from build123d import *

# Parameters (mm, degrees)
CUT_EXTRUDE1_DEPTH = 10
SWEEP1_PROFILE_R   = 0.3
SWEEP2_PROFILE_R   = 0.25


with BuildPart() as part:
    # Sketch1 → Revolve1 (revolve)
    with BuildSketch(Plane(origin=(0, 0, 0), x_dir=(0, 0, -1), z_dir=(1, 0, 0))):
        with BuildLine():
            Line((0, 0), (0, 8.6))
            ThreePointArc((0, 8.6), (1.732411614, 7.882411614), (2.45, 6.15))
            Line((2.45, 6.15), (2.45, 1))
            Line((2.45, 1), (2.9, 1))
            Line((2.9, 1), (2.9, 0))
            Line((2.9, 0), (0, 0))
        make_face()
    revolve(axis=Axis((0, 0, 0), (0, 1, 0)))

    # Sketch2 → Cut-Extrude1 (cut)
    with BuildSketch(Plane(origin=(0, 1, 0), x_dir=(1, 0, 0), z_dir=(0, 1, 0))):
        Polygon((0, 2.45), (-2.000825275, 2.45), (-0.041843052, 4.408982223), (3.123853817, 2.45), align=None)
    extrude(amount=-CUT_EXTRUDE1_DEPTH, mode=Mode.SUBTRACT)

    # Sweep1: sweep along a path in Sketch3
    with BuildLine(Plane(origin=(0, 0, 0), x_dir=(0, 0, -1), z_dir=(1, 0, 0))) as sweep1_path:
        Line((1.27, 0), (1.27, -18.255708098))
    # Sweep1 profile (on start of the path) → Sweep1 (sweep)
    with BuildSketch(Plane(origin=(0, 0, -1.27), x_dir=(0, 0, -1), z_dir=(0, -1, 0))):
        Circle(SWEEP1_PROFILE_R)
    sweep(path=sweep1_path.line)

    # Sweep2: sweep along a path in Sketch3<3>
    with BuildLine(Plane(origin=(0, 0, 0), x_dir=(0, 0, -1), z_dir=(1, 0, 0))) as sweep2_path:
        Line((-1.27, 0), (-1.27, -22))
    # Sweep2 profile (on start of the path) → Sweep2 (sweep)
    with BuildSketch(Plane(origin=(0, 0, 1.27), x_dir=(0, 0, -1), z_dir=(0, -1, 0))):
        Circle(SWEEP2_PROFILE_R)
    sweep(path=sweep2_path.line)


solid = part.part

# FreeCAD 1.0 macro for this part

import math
import FreeCAD as App
import Part
import Sketcher

V = App.Vector
Q = App.Units.Quantity


def add_polygon(sketch, points):
    """Adds a closed chain of lines whose ends are joined by coincident constraints."""
    first, n = sketch.GeometryCount, len(points)
    for a, b in zip(points, points[1:] + points[:1]):
        sketch.addGeometry(Part.LineSegment(App.Vector(*a, 0), App.Vector(*b, 0)), False)
    for i in range(n):
        sketch.addConstraint(Sketcher.Constraint("Coincident", first + i, 2, first + (i + 1) % n, 1))

doc = App.newDocument("Part")
params = doc.addObject("Spreadsheet::Sheet", "Params")
for row, (alias, value) in enumerate([
    ("sketch1_width", "1 mm"),
    ("sketch1_radius", "2.45 mm"),
    ("sketch1_width2", "8.6 mm"),
    ("sketch1_height", "2.9 mm"),
    ("revolution_angle", "360 deg"),
    ("pocket1_length", "10 mm"),
    ("sketch3_diameter", "0.6 mm"),
    ("sketch5_diameter", "0.5 mm"),
    ("sketch6_height", "22 mm"),
], start=1):
    params.set(f"A{row}", alias)
    params.set(f"B{row}", "=" + value)
    params.setAlias(f"B{row}", alias)

body = doc.addObject("PartDesign::Body", "Body")

# Sketch on YZ plane
sketch1 = body.newObject("Sketcher::SketchObject", "Sketch")
sketch1.AttachmentSupport = (doc.getObject("YZ_Plane"), [""])
sketch1.MapMode = "FlatFace"
sketch1.addGeometry(Part.LineSegment(V(8.6, 0, 0), V(0, 0, 0)), False)
sketch1.addGeometry(Part.LineSegment(V(0, 0, 0), V(0, -2.9, 0)), False)
sketch1.addGeometry(Part.LineSegment(V(0, -2.9, 0), V(1, -2.9, 0)), False)
sketch1.addGeometry(Part.LineSegment(V(1, -2.9, 0), V(1, -2.45, 0)), False)
sketch1.addGeometry(Part.LineSegment(V(1, -2.45, 0), V(6.15, -2.45, 0)), False)
sketch1.addGeometry(Part.ArcOfCircle(Part.Circle(V(6.15, 0, 0), V(0, 0, 1), 2.45), math.radians(-90), math.radians(0)), False)
sketch1.addConstraint(Sketcher.Constraint("Coincident", 0, 2, 1, 1))
sketch1.addConstraint(Sketcher.Constraint("Coincident", 1, 2, 2, 1))
sketch1.addConstraint(Sketcher.Constraint("Coincident", 2, 2, 3, 1))
sketch1.addConstraint(Sketcher.Constraint("Coincident", 3, 2, 4, 1))
sketch1.addConstraint(Sketcher.Constraint("Tangent", 4, 2, 5, 1))
sketch1.addConstraint(Sketcher.Constraint("Coincident", 5, 2, 0, 1))
sketch1.addConstraint(Sketcher.Constraint("Horizontal", 0))
sketch1.addConstraint(Sketcher.Constraint("Vertical", 1))
sketch1.addConstraint(Sketcher.Constraint("Horizontal", 2))
sketch1.addConstraint(Sketcher.Constraint("Vertical", 3))
sketch1.addConstraint(Sketcher.Constraint("Horizontal", 4))
sketch1.addConstraint(Sketcher.Constraint("Coincident", 0, 2, -1, 1))
sketch1.addConstraint(Sketcher.Constraint("PointOnObject", 5, 3, -1))
sketch1.addConstraint(Sketcher.Constraint("DistanceX", 2, 1, 2, 2, 1.0))
sketch1.addConstraint(Sketcher.Constraint("Radius", 5, 2.45))
sketch1.addConstraint(Sketcher.Constraint("DistanceX", 0, 2, 0, 1, 8.6))
sketch1.addConstraint(Sketcher.Constraint("DistanceY", 1, 2, 1, 1, 2.9))
sketch1.setExpression("Constraints[13]", "Params.sketch1_width")
sketch1.setExpression("Constraints[14]", "Params.sketch1_radius")
sketch1.setExpression("Constraints[15]", "Params.sketch1_width2")
sketch1.setExpression("Constraints[16]", "Params.sketch1_height")
revolution = body.newObject("PartDesign::Revolution", "Revolution")
revolution.Profile = sketch1
revolution.ReferenceAxis = (sketch1, ["H_Axis"])
revolution.setExpression("Angle", "Params.revolution_angle")

# Sketch on XZ plane
sketch2 = body.newObject("Sketcher::SketchObject", "Sketch001")
sketch2.AttachmentSupport = (doc.getObject("XZ_Plane"), [""])
sketch2.MapMode = "FlatFace"
sketch2.AttachmentOffset = App.Placement(V(0, 0, -1), App.Rotation())
add_polygon(sketch2, [(-2.000825, -2.45), (3.123854, -2.45), (-0.041843, -4.408982)])  # lines 0-2
sketch2.addConstraint(Sketcher.Constraint("Horizontal", 0))
sketch2.addConstraint(Sketcher.Constraint("Angle", 2, Q("135 deg")))
sketch2.addConstraint(Sketcher.Constraint("DistanceY", 0, 2, -1, 1, 2.45))
sketch2.addConstraint(Sketcher.Constraint("Distance", 1, 3.722801))
sketch2.addConstraint(Sketcher.Constraint("DistanceX", 0, 1, 0, 2, 5.124679))
sketch2.addConstraint(Sketcher.Constraint("DistanceX", -1, 1, 0, 2, 3.123854))
pocket1 = body.newObject("PartDesign::Pocket", "Pocket")
pocket1.Profile = sketch2
pocket1.setExpression("Length", "Params.pocket1_length")
pocket1.Reversed = True

# Sketch on XZ plane
sketch3 = body.newObject("Sketcher::SketchObject", "Sketch002")
sketch3.AttachmentSupport = (doc.getObject("XZ_Plane"), [""])
sketch3.MapMode = "FlatFace"
sketch3.addGeometry(Part.Circle(V(0, -1.27, 0), V(0, 0, 1), 0.3), False)
sketch3.addConstraint(Sketcher.Constraint("PointOnObject", 0, 3, -2))
sketch3.addConstraint(Sketcher.Constraint("Diameter", 0, 0.6))
sketch3.addConstraint(Sketcher.Constraint("DistanceY", 0, 3, -1, 1, 1.27))
sketch3.setExpression("Constraints[1]", "Params.sketch3_diameter")

# Sketch on XY plane
sketch4 = body.newObject("Sketcher::SketchObject", "Sketch003")
sketch4.AttachmentSupport = (doc.getObject("XY_Plane"), [""])
sketch4.MapMode = "FlatFace"
sketch4.AttachmentOffset = App.Placement(V(0, 0, -1.27), App.Rotation())
sketch4.addGeometry(Part.LineSegment(V(0, 0, 0), V(0, -18.255708, 0)), False)
sketch4.addConstraint(Sketcher.Constraint("Vertical", 0))
sketch4.addConstraint(Sketcher.Constraint("Coincident", 0, 1, -1, 1))
sketch4.addConstraint(Sketcher.Constraint("DistanceY", 0, 2, 0, 1, 18.255708))
doc.recompute()

additivepipe = body.newObject("PartDesign::AdditivePipe", "AdditivePipe")
additivepipe.Profile = sketch3
additivepipe.Spine = (sketch4, ["Edge1"])

# Sketch on XZ plane
sketch5 = body.newObject("Sketcher::SketchObject", "Sketch004")
sketch5.AttachmentSupport = (doc.getObject("XZ_Plane"), [""])
sketch5.MapMode = "FlatFace"
sketch5.addGeometry(Part.Circle(V(0, 1.27, 0), V(0, 0, 1), 0.25), False)
sketch5.addConstraint(Sketcher.Constraint("PointOnObject", 0, 3, -2))
sketch5.addConstraint(Sketcher.Constraint("Diameter", 0, 0.5))
sketch5.addConstraint(Sketcher.Constraint("DistanceY", -1, 1, 0, 3, 1.27))
sketch5.setExpression("Constraints[1]", "Params.sketch5_diameter")

# Sketch on XY plane
sketch6 = body.newObject("Sketcher::SketchObject", "Sketch005")
sketch6.AttachmentSupport = (doc.getObject("XY_Plane"), [""])
sketch6.MapMode = "FlatFace"
sketch6.AttachmentOffset = App.Placement(V(0, 0, 1.27), App.Rotation())
sketch6.addGeometry(Part.LineSegment(V(0, 0, 0), V(0, -22, 0)), False)
sketch6.addConstraint(Sketcher.Constraint("Vertical", 0))
sketch6.addConstraint(Sketcher.Constraint("Coincident", 0, 1, -1, 1))
sketch6.addConstraint(Sketcher.Constraint("DistanceY", 0, 2, 0, 1, 22.0))
sketch6.setExpression("Constraints[2]", "Params.sketch6_height")
doc.recompute()

additivepipe2 = body.newObject("PartDesign::AdditivePipe", "AdditivePipe001")
additivepipe2.Profile = sketch5
additivepipe2.Spine = (sketch6, ["Edge1"])

doc.recompute()
